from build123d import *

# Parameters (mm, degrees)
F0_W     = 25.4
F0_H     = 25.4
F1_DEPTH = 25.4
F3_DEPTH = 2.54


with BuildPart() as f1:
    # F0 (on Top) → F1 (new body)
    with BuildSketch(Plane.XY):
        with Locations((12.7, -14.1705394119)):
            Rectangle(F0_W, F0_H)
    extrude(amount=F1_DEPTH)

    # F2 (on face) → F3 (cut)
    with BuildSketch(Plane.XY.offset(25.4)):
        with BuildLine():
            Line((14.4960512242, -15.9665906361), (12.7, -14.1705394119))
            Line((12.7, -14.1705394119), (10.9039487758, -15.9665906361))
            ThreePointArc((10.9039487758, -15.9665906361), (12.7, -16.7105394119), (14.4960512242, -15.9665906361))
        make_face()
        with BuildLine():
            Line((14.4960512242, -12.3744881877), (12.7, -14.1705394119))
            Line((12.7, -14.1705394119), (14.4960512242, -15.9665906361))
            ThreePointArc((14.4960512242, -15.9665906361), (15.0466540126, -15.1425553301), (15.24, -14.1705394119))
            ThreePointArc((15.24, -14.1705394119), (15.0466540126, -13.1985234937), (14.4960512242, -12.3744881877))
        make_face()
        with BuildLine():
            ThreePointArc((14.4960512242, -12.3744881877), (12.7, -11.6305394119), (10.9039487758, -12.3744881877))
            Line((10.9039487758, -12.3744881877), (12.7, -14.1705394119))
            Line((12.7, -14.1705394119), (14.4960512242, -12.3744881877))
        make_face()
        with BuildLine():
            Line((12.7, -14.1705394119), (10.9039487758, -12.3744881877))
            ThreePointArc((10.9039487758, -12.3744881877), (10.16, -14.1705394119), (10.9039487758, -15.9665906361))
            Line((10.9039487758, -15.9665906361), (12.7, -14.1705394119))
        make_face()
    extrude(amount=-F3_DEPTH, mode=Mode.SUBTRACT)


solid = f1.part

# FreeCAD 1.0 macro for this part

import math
import FreeCAD as App
import Part
import Sketcher
from FreeCAD import Vector
Q = App.Units.Quantity


def add_polygon(sketch, points):
    """Adds a closed chain of lines whose ends are joined by coincident constraints."""
    first, n = sketch.GeometryCount, len(points)
    for a, b in zip(points, points[1:] + points[:1]):
        sketch.addGeometry(Part.LineSegment(App.Vector(*a, 0), App.Vector(*b, 0)), False)
    for i in range(n):
        sketch.addConstraint(Sketcher.Constraint("Coincident", first + i, 2, first + (i + 1) % n, 1))

doc = App.newDocument("Part")
body = doc.addObject("PartDesign::Body", "Body")

# Sketch on XY plane
sketch1 = body.newObject("Sketcher::SketchObject", "Sketch")
sketch1.AttachmentSupport = (doc.getObject("XY_Plane"), [""])
sketch1.MapMode = "FlatFace"
add_polygon(sketch1, [(0, -1.470539), (0, -26.870539), (25.4, -26.870539), (25.4, -1.470539)])  # lines 0-3
sketch1.addConstraint(Sketcher.Constraint("Vertical", 0))
sketch1.addConstraint(Sketcher.Constraint("Horizontal", 1))
sketch1.addConstraint(Sketcher.Constraint("Vertical", 2))
sketch1.addConstraint(Sketcher.Constraint("Horizontal", 3))
sketch1.addConstraint(Sketcher.Constraint("PointOnObject", 0, 2, -2))
sketch1.addConstraint(Sketcher.Constraint("Equal", 3, 0))
sketch1.addConstraint(Sketcher.Constraint("DistanceX", 1, 1, 1, 2, Q("1 in")))
sketch1.addConstraint(Sketcher.Constraint("DistanceY", 0, 2, -1, 1, 26.870539))
pad1 = body.newObject("PartDesign::Pad", "Pad")
pad1.Profile = sketch1
pad1.Length = Q("1 in")

# Sketch on XY plane
sketch2 = body.newObject("Sketcher::SketchObject", "Sketch001")
sketch2.AttachmentSupport = (doc.getObject("XY_Plane"), [""])
sketch2.MapMode = "FlatFace"
sketch2.AttachmentOffset = App.Placement(Vector(0, 0, 1 * 25.4), App.Rotation())
sketch2.addGeometry(Part.ArcOfCircle(Part.Circle(Vector(12.7, -14.170539, 0), Vector(0, 0, 1), 2.54), math.radians(-135), math.radians(-45)), False)
sketch2.addGeometry(Part.ArcOfCircle(Part.Circle(Vector(12.7, -14.170539, 0), Vector(0, 0, 1), 2.54), math.radians(-45), math.radians(0)), False)
sketch2.addGeometry(Part.ArcOfCircle(Part.Circle(Vector(12.7, -14.170539, 0), Vector(0, 0, 1), 2.54), math.radians(0), math.radians(45)), False)
sketch2.addGeometry(Part.ArcOfCircle(Part.Circle(Vector(12.7, -14.170539, 0), Vector(0, 0, 1), 2.54), math.radians(45), math.radians(135)), False)
sketch2.addGeometry(Part.ArcOfCircle(Part.Circle(Vector(12.7, -14.170539, 0), Vector(0, 0, 1), 2.54), math.radians(135), math.radians(225)), False)
sketch2.addConstraint(Sketcher.Constraint("Tangent", 0, 2, 1, 1))
sketch2.addConstraint(Sketcher.Constraint("Tangent", 1, 2, 2, 1))
sketch2.addConstraint(Sketcher.Constraint("Tangent", 2, 2, 3, 1))
sketch2.addConstraint(Sketcher.Constraint("Tangent", 3, 2, 4, 1))
sketch2.addConstraint(Sketcher.Constraint("Tangent", 4, 2, 0, 1))
sketch2.addConstraint(Sketcher.Constraint("Coincident", 2, 3, 0, 3))
sketch2.addConstraint(Sketcher.Constraint("Horizontal", 4, 3, 1, 2))
sketch2.addConstraint(Sketcher.Constraint("Horizontal", 2, 2, 3, 2))
sketch2.addConstraint(Sketcher.Constraint("Horizontal", 0, 2, 4, 2))
sketch2.addConstraint(Sketcher.Constraint("Vertical", 0, 2, 2, 2))
sketch2.addConstraint(Sketcher.Constraint("Radius", 0, Q("0.1 in")))
sketch2.addConstraint(Sketcher.Constraint("DistanceX", -1, 1, 0, 3, Q("0.5 in")))
sketch2.addConstraint(Sketcher.Constraint("DistanceY", 0, 3, -1, 1, 14.170539))
sketch2.addConstraint(Sketcher.Constraint("DistanceX", -1, 1, 0, 2, 14.496051))
pocket1 = body.newObject("PartDesign::Pocket", "Pocket")
pocket1.Profile = sketch2
pocket1.Length = Q("0.1 in")

doc.recompute()
